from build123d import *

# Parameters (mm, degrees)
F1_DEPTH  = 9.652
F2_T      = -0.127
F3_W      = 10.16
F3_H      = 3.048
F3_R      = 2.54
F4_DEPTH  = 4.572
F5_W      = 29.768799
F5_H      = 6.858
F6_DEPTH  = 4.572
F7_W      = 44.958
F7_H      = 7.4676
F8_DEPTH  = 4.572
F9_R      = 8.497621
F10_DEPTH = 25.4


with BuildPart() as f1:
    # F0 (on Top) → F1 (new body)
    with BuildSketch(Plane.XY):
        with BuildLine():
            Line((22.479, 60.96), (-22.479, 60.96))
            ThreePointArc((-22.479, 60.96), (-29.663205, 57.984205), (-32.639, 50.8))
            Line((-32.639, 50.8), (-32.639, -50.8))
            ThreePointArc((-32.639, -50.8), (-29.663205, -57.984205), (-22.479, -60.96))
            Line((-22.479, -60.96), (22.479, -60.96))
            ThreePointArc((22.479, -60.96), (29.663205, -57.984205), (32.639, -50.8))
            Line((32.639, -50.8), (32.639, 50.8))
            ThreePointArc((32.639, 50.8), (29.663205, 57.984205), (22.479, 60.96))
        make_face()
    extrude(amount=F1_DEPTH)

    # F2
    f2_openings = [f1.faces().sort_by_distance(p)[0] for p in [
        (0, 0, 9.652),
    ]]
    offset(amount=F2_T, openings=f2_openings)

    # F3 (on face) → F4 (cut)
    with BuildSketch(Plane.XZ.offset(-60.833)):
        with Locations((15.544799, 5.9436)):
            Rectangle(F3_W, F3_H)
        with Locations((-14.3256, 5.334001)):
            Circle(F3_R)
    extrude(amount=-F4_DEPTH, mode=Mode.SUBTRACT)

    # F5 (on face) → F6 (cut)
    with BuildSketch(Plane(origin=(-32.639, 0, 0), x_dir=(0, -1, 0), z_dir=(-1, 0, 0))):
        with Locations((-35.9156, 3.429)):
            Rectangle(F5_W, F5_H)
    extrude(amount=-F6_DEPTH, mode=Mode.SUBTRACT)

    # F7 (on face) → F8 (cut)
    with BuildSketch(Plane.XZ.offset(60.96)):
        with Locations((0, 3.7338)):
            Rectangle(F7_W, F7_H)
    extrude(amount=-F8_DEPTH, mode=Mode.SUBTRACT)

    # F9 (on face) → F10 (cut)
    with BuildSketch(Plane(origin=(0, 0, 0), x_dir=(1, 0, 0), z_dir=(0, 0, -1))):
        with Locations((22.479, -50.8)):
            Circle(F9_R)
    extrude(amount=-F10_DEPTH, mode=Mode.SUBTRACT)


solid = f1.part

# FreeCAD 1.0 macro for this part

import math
import FreeCAD as App
import Part
import Sketcher

V = App.Vector
Q = App.Units.Quantity


def faces_at(feature, points):
    """Names of the faces that lie closest to the given points."""
    faces = feature.Shape.Faces
    near = lambda p: min(range(len(faces)), key=lambda i: faces[i].distToShape(Part.Vertex(*p))[0])
    return sorted({f"Face{near(p) + 1}" for p in points})


def add_polygon(sketch, points):
    """Adds a closed chain of lines whose ends are joined by coincident constraints."""
    first, n = sketch.GeometryCount, len(points)
    for a, b in zip(points, points[1:] + points[:1]):
        sketch.addGeometry(Part.LineSegment(App.Vector(*a, 0), App.Vector(*b, 0)), False)
    for i in range(n):
        sketch.addConstraint(Sketcher.Constraint("Coincident", first + i, 2, first + (i + 1) % n, 1))

doc = App.newDocument("Part")
params = doc.addObject("Spreadsheet::Sheet", "Params")
for row, (alias, value) in enumerate([
    ("sketch1_radius", "0.4 in"),
    ("sketch1_height", "4 in"),
    ("sketch1_width", "1.77 in"),
    ("pad1_length", "0.38 in"),
    ("thickness_wall", "0.005 in"),
    ("sketch2_diameter", "0.2 in"),
    ("sketch2_width", "0.4 in"),
    ("sketch2_height", "0.12 in"),
    ("pocket1_length", "0.18 in"),
    ("sketch3_height", "0.27 in"),
    ("sketch3_width", "1.172 in"),
    ("pocket2_length", "0.18 in"),
    ("sketch4_width", "1.77 in"),
    ("sketch4_height", "0.294 in"),
    ("pocket3_length", "0.18 in"),
    ("pocket4_length", "1 in"),
], start=1):
    params.set(f"A{row}", alias)
    params.set(f"B{row}", "=" + value)
    params.setAlias(f"B{row}", alias)

body = doc.addObject("PartDesign::Body", "Body")

# Sketch on XY plane
sketch1 = body.newObject("Sketcher::SketchObject", "Sketch")
sketch1.AttachmentSupport = (doc.getObject("XY_Plane"), [""])
sketch1.MapMode = "FlatFace"
sketch1.addGeometry(Part.LineSegment(V(22, 61, 0), V(-22, 61, 0)), False)
sketch1.addGeometry(Part.ArcOfCircle(Part.Circle(V(-22, 51, 0), V(0, 0, 1), 10), math.radians(90), math.radians(180)), False)
sketch1.addGeometry(Part.LineSegment(V(-33, 51, 0), V(-33, -51, 0)), False)
sketch1.addGeometry(Part.ArcOfCircle(Part.Circle(V(-22, -51, 0), V(0, 0, 1), 10), math.radians(180), math.radians(270)), False)
sketch1.addGeometry(Part.LineSegment(V(-22, -61, 0), V(22, -61, 0)), False)
sketch1.addGeometry(Part.ArcOfCircle(Part.Circle(V(22, -51, 0), V(0, 0, 1), 10), math.radians(-90), math.radians(0)), False)
sketch1.addGeometry(Part.LineSegment(V(33, -51, 0), V(33, 51, 0)), False)
sketch1.addGeometry(Part.ArcOfCircle(Part.Circle(V(22, 51, 0), V(0, 0, 1), 10), math.radians(0), math.radians(90)), False)
sketch1.addConstraint(Sketcher.Constraint("Tangent", 0, 2, 1, 1))
sketch1.addConstraint(Sketcher.Constraint("Tangent", 1, 2, 2, 1))
sketch1.addConstraint(Sketcher.Constraint("Tangent", 2, 2, 3, 1))
sketch1.addConstraint(Sketcher.Constraint("Tangent", 3, 2, 4, 1))
sketch1.addConstraint(Sketcher.Constraint("Tangent", 4, 2, 5, 1))
sketch1.addConstraint(Sketcher.Constraint("Tangent", 5, 2, 6, 1))
sketch1.addConstraint(Sketcher.Constraint("Tangent", 6, 2, 7, 1))
sketch1.addConstraint(Sketcher.Constraint("Tangent", 7, 2, 0, 1))
sketch1.addConstraint(Sketcher.Constraint("Horizontal", 0))
sketch1.addConstraint(Sketcher.Constraint("Vertical", 2))
sketch1.addConstraint(Sketcher.Constraint("Horizontal", 4))
sketch1.addConstraint(Sketcher.Constraint("Vertical", 6))
sketch1.addConstraint(Sketcher.Constraint("Equal", 1, 3))
sketch1.addConstraint(Sketcher.Constraint("Equal", 3, 5))
sketch1.addConstraint(Sketcher.Constraint("Equal", 5, 7))
sketch1.addConstraint(Sketcher.Constraint("Symmetric", 1, 3, 5, 3, -1, 1))
sketch1.addConstraint(Sketcher.Constraint("Radius", 1, Q("0.4 in")))
sketch1.addConstraint(Sketcher.Constraint("DistanceY", 2, 2, 2, 1, Q("4 in")))
sketch1.addConstraint(Sketcher.Constraint("DistanceX", 0, 2, 0, 1, Q("1.77 in")))
sketch1.setExpression("Constraints[16]", "Params.sketch1_radius")
sketch1.setExpression("Constraints[17]", "Params.sketch1_height")
sketch1.setExpression("Constraints[18]", "Params.sketch1_width")
pad1 = body.newObject("PartDesign::Pad", "Pad")
pad1.Profile = sketch1
pad1.setExpression("Length", "Params.pad1_length")
doc.recompute()

thickness = body.newObject("PartDesign::Thickness", "Thickness")
thickness.Base = (pad1, faces_at(pad1, [(0, 0, 9.652)]))
thickness.setExpression("Value", "Params.thickness_wall")
thickness.Reversed = True
thickness.Join = "Arc"

# Sketch on XZ plane
sketch2 = body.newObject("Sketcher::SketchObject", "Sketch001")
sketch2.AttachmentSupport = (doc.getObject("XZ_Plane"), [""])
sketch2.MapMode = "FlatFace"
sketch2.AttachmentOffset = App.Placement(V(0, 0, -2.395 * 25.4), App.Rotation())
add_polygon(sketch2, [(10.5, 7.5), (10.5, 4.4), (20.6, 4.4), (20.6, 7.5)])  # lines 0-3
sketch2.addGeometry(Part.Circle(V(-14.3, 5.3, 0), V(0, 0, 1), 2.5), False)  # 4
sketch2.addConstraint(Sketcher.Constraint("Vertical", 0))
sketch2.addConstraint(Sketcher.Constraint("Horizontal", 1))
sketch2.addConstraint(Sketcher.Constraint("Vertical", 2))
sketch2.addConstraint(Sketcher.Constraint("Horizontal", 3))
sketch2.addConstraint(Sketcher.Constraint("Diameter", 4, Q("0.2 in")))
sketch2.addConstraint(Sketcher.Constraint("DistanceX", 1, 1, 1, 2, Q("0.4 in")))
sketch2.addConstraint(Sketcher.Constraint("DistanceY", 0, 2, 0, 1, Q("0.12 in")))
sketch2.addConstraint(Sketcher.Constraint("DistanceY", -1, 1, 4, 3, Q("0.21 in")))
sketch2.addConstraint(Sketcher.Constraint("DistanceX", 4, 3, -1, 1, Q("0.564 in")))
sketch2.addConstraint(Sketcher.Constraint("DistanceX", -1, 1, 0, 2, Q("0.412 in")))
sketch2.addConstraint(Sketcher.Constraint("DistanceY", -1, 1, 0, 2, Q("0.174 in")))
sketch2.setExpression("Constraints[8]", "Params.sketch2_diameter")
sketch2.setExpression("Constraints[9]", "Params.sketch2_width")
sketch2.setExpression("Constraints[10]", "Params.sketch2_height")
pocket1 = body.newObject("PartDesign::Pocket", "Pocket")
pocket1.Profile = sketch2
pocket1.setExpression("Length", "Params.pocket1_length")

# Sketch on YZ plane
sketch3 = body.newObject("Sketcher::SketchObject", "Sketch002")
sketch3.AttachmentSupport = (doc.getObject("YZ_Plane"), [""])
sketch3.MapMode = "FlatFace"
sketch3.AttachmentOffset = App.Placement(V(0, 0, -1.285 * 25.4), App.Rotation())
add_polygon(sketch3, [(51, 7), (51, 0), (21, 0), (21, 7)])  # lines 0-3
sketch3.addConstraint(Sketcher.Constraint("Vertical", 0))
sketch3.addConstraint(Sketcher.Constraint("Horizontal", 1))
sketch3.addConstraint(Sketcher.Constraint("Vertical", 2))
sketch3.addConstraint(Sketcher.Constraint("Horizontal", 3))
sketch3.addConstraint(Sketcher.Constraint("PointOnObject", 0, 2, -1))
sketch3.addConstraint(Sketcher.Constraint("DistanceX", -1, 1, 0, 2, Q("2 in")))
sketch3.addConstraint(Sketcher.Constraint("DistanceY", 0, 2, 0, 1, Q("0.27 in")))
sketch3.addConstraint(Sketcher.Constraint("DistanceX", 1, 2, 1, 1, Q("1.172 in")))
sketch3.setExpression("Constraints[10]", "Params.sketch3_height")
sketch3.setExpression("Constraints[11]", "Params.sketch3_width")
pocket2 = body.newObject("PartDesign::Pocket", "Pocket001")
pocket2.Profile = sketch3
pocket2.setExpression("Length", "Params.pocket2_length")
pocket2.Reversed = True

# Sketch on XZ plane
sketch4 = body.newObject("Sketcher::SketchObject", "Sketch003")
sketch4.AttachmentSupport = (doc.getObject("XZ_Plane"), [""])
sketch4.MapMode = "FlatFace"
sketch4.AttachmentOffset = App.Placement(V(0, 0, 2.4 * 25.4), App.Rotation())
add_polygon(sketch4, [(-22, 7), (-22, 0), (22, 0), (22, 7)])  # lines 0-3
sketch4.addConstraint(Sketcher.Constraint("Vertical", 0))
sketch4.addConstraint(Sketcher.Constraint("Horizontal", 1))
sketch4.addConstraint(Sketcher.Constraint("Vertical", 2))
sketch4.addConstraint(Sketcher.Constraint("Horizontal", 3))
sketch4.addConstraint(Sketcher.Constraint("Symmetric", 0, 2, 1, 2, -1, 1))
sketch4.addConstraint(Sketcher.Constraint("DistanceX", 1, 1, 1, 2, Q("1.77 in")))
sketch4.addConstraint(Sketcher.Constraint("DistanceY", 0, 2, 0, 1, Q("0.294 in")))
sketch4.setExpression("Constraints[9]", "Params.sketch4_width")
sketch4.setExpression("Constraints[10]", "Params.sketch4_height")
pocket3 = body.newObject("PartDesign::Pocket", "Pocket002")
pocket3.Profile = sketch4
pocket3.setExpression("Length", "Params.pocket3_length")

# Sketch on XY plane
sketch5 = body.newObject("Sketcher::SketchObject", "Sketch004")
sketch5.AttachmentSupport = (doc.getObject("XY_Plane"), [""])
sketch5.MapMode = "FlatFace"
sketch5.addGeometry(Part.Circle(V(22, 51, 0), V(0, 0, 1), 8), False)
sketch5.addConstraint(Sketcher.Constraint("DistanceY", -1, 1, 0, 3, Q("2 in")))
sketch5.addConstraint(Sketcher.Constraint("DistanceX", -1, 1, 0, 3, Q("0.885 in")))
sketch5.addConstraint(Sketcher.Constraint("Diameter", 0, 16.995242))
pocket4 = body.newObject("PartDesign::Pocket", "Pocket003")
pocket4.Profile = sketch5
pocket4.setExpression("Length", "Params.pocket4_length")
pocket4.Reversed = True

doc.recompute()
